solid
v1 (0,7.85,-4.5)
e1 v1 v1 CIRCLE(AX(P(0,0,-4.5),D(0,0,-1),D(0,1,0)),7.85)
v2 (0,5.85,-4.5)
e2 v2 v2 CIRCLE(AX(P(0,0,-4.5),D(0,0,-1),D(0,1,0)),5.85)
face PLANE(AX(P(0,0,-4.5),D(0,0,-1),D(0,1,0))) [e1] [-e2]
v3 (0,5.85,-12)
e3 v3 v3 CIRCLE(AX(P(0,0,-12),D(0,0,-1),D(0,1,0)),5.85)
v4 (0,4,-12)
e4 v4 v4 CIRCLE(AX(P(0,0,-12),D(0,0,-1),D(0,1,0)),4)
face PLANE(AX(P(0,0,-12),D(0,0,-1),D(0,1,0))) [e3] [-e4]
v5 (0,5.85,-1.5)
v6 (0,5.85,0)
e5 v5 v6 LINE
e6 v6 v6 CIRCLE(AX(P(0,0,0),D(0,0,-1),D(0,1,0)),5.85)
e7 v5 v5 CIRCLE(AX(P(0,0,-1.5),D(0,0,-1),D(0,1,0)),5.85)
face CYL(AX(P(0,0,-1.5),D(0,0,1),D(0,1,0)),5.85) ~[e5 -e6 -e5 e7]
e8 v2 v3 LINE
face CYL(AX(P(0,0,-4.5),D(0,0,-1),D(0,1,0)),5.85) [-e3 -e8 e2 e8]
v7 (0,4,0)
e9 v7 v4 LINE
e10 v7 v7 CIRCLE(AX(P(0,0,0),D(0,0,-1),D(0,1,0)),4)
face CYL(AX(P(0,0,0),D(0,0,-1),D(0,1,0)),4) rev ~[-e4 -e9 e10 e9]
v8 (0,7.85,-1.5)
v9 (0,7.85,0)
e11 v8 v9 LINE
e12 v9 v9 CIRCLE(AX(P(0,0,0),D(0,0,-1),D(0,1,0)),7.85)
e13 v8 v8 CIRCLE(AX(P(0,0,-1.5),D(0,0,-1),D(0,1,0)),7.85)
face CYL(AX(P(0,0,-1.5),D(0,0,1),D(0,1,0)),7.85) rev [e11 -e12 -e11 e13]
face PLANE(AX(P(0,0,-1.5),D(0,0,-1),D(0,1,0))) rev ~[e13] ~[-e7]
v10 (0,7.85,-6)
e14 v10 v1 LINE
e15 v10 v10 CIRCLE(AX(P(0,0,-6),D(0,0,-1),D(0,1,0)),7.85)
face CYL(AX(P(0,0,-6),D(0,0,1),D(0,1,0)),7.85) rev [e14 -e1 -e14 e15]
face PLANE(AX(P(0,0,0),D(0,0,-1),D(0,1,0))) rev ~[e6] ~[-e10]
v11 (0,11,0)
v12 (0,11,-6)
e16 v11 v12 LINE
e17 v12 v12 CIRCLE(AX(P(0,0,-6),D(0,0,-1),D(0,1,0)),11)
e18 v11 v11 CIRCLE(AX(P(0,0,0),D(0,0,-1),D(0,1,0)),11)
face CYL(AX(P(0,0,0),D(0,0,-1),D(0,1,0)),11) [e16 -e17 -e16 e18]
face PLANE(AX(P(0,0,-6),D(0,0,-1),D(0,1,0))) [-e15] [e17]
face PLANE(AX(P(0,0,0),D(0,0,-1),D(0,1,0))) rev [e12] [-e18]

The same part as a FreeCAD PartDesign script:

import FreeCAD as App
import Part
import Sketcher
from FreeCAD import Vector
Q = App.Units.Quantity

doc = App.newDocument("Part")
body = doc.addObject("PartDesign::Body", "Body")

sketch1 = body.newObject("Sketcher::SketchObject", "Sketch")
sketch1.AttachmentSupport = (doc.getObject("YZ_Plane"), [""])
sketch1.MapMode = "FlatFace"
sketch1.addGeometry(Part.LineSegment(Vector(7.8, 0, 0), Vector(7.8, -1.5, 0)), False)
sketch1.addGeometry(Part.LineSegment(Vector(7.8, -1.5, 0), Vector(5.8, -1.5, 0)), False)
sketch1.addGeometry(Part.LineSegment(Vector(5.8, -1.5, 0), Vector(5.8, 0, 0)), False)
sketch1.addGeometry(Part.LineSegment(Vector(5.8, 0, 0), Vector(4, 0, 0)), False)
sketch1.addGeometry(Part.LineSegment(Vector(4, 0, 0), Vector(4, -12, 0)), False)
sketch1.addGeometry(Part.LineSegment(Vector(4, -12, 0), Vector(5.8, -12, 0)), False)
sketch1.addGeometry(Part.LineSegment(Vector(5.8, -12, 0), Vector(5.8, -4.5, 0)), False)
sketch1.addGeometry(Part.LineSegment(Vector(5.8, -4.5, 0), Vector(7.8, -4.5, 0)), False)
sketch1.addGeometry(Part.LineSegment(Vector(7.8, -4.5, 0), Vector(7.8, -6, 0)), False)
sketch1.addGeometry(Part.LineSegment(Vector(7.8, -6, 0), Vector(11, -6, 0)), False)
sketch1.addGeometry(Part.LineSegment(Vector(11, -6, 0), Vector(11, 0, 0)), False)
sketch1.addGeometry(Part.LineSegment(Vector(11, 0, 0), Vector(7.8, 0, 0)), False)
sketch1.addConstraint(Sketcher.Constraint("Coincident", 0, 2, 1, 1))
sketch1.addConstraint(Sketcher.Constraint("Coincident", 1, 2, 2, 1))
sketch1.addConstraint(Sketcher.Constraint("Coincident", 2, 2, 3, 1))
sketch1.addConstraint(Sketcher.Constraint("Coincident", 3, 2, 4, 1))
sketch1.addConstraint(Sketcher.Constraint("Coincident", 4, 2, 5, 1))
sketch1.addConstraint(Sketcher.Constraint("Coincident", 5, 2, 6, 1))
sketch1.addConstraint(Sketcher.Constraint("Coincident", 6, 2, 7, 1))
sketch1.addConstraint(Sketcher.Constraint("Coincident", 7, 2, 8, 1))
sketch1.addConstraint(Sketcher.Constraint("Coincident", 8, 2, 9, 1))
sketch1.addConstraint(Sketcher.Constraint("Coincident", 9, 2, 10, 1))
sketch1.addConstraint(Sketcher.Constraint("Coincident", 10, 2, 11, 1))
sketch1.addConstraint(Sketcher.Constraint("Coincident", 11, 2, 0, 1))
sketch1.addConstraint(Sketcher.Constraint("Vertical", 0))
sketch1.addConstraint(Sketcher.Constraint("Horizontal", 1))
sketch1.addConstraint(Sketcher.Constraint("Vertical", 2))
sketch1.addConstraint(Sketcher.Constraint("Horizontal", 3))
sketch1.addConstraint(Sketcher.Constraint("Vertical", 4))
sketch1.addConstraint(Sketcher.Constraint("Horizontal", 5))
sketch1.addConstraint(Sketcher.Constraint("Vertical", 6))
sketch1.addConstraint(Sketcher.Constraint("Horizontal", 7))
sketch1.addConstraint(Sketcher.Constraint("Vertical", 8))
sketch1.addConstraint(Sketcher.Constraint("Horizontal", 9))
sketch1.addConstraint(Sketcher.Constraint("Vertical", 10))
sketch1.addConstraint(Sketcher.Constraint("Horizontal", 11))
sketch1.addConstraint(Sketcher.Constraint("PointOnObject", 2, 2, -1))
sketch1.addConstraint(Sketcher.Constraint("PointOnObject", 10, 2, -1))
sketch1.addConstraint(Sketcher.Constraint("Vertical", 2, 2, 5, 2))
sketch1.addConstraint(Sketcher.Constraint("Vertical", 0, 2, 7, 2))
sketch1.addConstraint(Sketcher.Constraint("Equal", 2, 8))
sketch1.addConstraint(Sketcher.Constraint("DistanceX", 1, 2, 1, 1, Q("2 mm")))
sketch1.addConstraint(Sketcher.Constraint("DistanceY", 4, 2, 4, 1, Q("12 mm")))
sketch1.addConstraint(Sketcher.Constraint("DistanceY", 10, 1, 10, 2, Q("6 mm")))
sketch1.addConstraint(Sketcher.Constraint("DistanceY", 6, 2, 1, 2, Q("3 mm")))
sketch1.addConstraint(Sketcher.Constraint("DistanceX", -1, 1, 3, 2, Q("4 mm")))
sketch1.addConstraint(Sketcher.Constraint("DistanceX", -1, 1, 9, 2, Q("11 mm")))
sketch1.addConstraint(Sketcher.Constraint("DistanceX", 3, 2, 3, 1, Q("1.85 mm")))
revolution = body.newObject("PartDesign::Revolution", "Revolution")
revolution.Profile = sketch1
revolution.ReferenceAxis = (sketch1, ["V_Axis"])
revolution.Angle = 360

doc.recompute()
